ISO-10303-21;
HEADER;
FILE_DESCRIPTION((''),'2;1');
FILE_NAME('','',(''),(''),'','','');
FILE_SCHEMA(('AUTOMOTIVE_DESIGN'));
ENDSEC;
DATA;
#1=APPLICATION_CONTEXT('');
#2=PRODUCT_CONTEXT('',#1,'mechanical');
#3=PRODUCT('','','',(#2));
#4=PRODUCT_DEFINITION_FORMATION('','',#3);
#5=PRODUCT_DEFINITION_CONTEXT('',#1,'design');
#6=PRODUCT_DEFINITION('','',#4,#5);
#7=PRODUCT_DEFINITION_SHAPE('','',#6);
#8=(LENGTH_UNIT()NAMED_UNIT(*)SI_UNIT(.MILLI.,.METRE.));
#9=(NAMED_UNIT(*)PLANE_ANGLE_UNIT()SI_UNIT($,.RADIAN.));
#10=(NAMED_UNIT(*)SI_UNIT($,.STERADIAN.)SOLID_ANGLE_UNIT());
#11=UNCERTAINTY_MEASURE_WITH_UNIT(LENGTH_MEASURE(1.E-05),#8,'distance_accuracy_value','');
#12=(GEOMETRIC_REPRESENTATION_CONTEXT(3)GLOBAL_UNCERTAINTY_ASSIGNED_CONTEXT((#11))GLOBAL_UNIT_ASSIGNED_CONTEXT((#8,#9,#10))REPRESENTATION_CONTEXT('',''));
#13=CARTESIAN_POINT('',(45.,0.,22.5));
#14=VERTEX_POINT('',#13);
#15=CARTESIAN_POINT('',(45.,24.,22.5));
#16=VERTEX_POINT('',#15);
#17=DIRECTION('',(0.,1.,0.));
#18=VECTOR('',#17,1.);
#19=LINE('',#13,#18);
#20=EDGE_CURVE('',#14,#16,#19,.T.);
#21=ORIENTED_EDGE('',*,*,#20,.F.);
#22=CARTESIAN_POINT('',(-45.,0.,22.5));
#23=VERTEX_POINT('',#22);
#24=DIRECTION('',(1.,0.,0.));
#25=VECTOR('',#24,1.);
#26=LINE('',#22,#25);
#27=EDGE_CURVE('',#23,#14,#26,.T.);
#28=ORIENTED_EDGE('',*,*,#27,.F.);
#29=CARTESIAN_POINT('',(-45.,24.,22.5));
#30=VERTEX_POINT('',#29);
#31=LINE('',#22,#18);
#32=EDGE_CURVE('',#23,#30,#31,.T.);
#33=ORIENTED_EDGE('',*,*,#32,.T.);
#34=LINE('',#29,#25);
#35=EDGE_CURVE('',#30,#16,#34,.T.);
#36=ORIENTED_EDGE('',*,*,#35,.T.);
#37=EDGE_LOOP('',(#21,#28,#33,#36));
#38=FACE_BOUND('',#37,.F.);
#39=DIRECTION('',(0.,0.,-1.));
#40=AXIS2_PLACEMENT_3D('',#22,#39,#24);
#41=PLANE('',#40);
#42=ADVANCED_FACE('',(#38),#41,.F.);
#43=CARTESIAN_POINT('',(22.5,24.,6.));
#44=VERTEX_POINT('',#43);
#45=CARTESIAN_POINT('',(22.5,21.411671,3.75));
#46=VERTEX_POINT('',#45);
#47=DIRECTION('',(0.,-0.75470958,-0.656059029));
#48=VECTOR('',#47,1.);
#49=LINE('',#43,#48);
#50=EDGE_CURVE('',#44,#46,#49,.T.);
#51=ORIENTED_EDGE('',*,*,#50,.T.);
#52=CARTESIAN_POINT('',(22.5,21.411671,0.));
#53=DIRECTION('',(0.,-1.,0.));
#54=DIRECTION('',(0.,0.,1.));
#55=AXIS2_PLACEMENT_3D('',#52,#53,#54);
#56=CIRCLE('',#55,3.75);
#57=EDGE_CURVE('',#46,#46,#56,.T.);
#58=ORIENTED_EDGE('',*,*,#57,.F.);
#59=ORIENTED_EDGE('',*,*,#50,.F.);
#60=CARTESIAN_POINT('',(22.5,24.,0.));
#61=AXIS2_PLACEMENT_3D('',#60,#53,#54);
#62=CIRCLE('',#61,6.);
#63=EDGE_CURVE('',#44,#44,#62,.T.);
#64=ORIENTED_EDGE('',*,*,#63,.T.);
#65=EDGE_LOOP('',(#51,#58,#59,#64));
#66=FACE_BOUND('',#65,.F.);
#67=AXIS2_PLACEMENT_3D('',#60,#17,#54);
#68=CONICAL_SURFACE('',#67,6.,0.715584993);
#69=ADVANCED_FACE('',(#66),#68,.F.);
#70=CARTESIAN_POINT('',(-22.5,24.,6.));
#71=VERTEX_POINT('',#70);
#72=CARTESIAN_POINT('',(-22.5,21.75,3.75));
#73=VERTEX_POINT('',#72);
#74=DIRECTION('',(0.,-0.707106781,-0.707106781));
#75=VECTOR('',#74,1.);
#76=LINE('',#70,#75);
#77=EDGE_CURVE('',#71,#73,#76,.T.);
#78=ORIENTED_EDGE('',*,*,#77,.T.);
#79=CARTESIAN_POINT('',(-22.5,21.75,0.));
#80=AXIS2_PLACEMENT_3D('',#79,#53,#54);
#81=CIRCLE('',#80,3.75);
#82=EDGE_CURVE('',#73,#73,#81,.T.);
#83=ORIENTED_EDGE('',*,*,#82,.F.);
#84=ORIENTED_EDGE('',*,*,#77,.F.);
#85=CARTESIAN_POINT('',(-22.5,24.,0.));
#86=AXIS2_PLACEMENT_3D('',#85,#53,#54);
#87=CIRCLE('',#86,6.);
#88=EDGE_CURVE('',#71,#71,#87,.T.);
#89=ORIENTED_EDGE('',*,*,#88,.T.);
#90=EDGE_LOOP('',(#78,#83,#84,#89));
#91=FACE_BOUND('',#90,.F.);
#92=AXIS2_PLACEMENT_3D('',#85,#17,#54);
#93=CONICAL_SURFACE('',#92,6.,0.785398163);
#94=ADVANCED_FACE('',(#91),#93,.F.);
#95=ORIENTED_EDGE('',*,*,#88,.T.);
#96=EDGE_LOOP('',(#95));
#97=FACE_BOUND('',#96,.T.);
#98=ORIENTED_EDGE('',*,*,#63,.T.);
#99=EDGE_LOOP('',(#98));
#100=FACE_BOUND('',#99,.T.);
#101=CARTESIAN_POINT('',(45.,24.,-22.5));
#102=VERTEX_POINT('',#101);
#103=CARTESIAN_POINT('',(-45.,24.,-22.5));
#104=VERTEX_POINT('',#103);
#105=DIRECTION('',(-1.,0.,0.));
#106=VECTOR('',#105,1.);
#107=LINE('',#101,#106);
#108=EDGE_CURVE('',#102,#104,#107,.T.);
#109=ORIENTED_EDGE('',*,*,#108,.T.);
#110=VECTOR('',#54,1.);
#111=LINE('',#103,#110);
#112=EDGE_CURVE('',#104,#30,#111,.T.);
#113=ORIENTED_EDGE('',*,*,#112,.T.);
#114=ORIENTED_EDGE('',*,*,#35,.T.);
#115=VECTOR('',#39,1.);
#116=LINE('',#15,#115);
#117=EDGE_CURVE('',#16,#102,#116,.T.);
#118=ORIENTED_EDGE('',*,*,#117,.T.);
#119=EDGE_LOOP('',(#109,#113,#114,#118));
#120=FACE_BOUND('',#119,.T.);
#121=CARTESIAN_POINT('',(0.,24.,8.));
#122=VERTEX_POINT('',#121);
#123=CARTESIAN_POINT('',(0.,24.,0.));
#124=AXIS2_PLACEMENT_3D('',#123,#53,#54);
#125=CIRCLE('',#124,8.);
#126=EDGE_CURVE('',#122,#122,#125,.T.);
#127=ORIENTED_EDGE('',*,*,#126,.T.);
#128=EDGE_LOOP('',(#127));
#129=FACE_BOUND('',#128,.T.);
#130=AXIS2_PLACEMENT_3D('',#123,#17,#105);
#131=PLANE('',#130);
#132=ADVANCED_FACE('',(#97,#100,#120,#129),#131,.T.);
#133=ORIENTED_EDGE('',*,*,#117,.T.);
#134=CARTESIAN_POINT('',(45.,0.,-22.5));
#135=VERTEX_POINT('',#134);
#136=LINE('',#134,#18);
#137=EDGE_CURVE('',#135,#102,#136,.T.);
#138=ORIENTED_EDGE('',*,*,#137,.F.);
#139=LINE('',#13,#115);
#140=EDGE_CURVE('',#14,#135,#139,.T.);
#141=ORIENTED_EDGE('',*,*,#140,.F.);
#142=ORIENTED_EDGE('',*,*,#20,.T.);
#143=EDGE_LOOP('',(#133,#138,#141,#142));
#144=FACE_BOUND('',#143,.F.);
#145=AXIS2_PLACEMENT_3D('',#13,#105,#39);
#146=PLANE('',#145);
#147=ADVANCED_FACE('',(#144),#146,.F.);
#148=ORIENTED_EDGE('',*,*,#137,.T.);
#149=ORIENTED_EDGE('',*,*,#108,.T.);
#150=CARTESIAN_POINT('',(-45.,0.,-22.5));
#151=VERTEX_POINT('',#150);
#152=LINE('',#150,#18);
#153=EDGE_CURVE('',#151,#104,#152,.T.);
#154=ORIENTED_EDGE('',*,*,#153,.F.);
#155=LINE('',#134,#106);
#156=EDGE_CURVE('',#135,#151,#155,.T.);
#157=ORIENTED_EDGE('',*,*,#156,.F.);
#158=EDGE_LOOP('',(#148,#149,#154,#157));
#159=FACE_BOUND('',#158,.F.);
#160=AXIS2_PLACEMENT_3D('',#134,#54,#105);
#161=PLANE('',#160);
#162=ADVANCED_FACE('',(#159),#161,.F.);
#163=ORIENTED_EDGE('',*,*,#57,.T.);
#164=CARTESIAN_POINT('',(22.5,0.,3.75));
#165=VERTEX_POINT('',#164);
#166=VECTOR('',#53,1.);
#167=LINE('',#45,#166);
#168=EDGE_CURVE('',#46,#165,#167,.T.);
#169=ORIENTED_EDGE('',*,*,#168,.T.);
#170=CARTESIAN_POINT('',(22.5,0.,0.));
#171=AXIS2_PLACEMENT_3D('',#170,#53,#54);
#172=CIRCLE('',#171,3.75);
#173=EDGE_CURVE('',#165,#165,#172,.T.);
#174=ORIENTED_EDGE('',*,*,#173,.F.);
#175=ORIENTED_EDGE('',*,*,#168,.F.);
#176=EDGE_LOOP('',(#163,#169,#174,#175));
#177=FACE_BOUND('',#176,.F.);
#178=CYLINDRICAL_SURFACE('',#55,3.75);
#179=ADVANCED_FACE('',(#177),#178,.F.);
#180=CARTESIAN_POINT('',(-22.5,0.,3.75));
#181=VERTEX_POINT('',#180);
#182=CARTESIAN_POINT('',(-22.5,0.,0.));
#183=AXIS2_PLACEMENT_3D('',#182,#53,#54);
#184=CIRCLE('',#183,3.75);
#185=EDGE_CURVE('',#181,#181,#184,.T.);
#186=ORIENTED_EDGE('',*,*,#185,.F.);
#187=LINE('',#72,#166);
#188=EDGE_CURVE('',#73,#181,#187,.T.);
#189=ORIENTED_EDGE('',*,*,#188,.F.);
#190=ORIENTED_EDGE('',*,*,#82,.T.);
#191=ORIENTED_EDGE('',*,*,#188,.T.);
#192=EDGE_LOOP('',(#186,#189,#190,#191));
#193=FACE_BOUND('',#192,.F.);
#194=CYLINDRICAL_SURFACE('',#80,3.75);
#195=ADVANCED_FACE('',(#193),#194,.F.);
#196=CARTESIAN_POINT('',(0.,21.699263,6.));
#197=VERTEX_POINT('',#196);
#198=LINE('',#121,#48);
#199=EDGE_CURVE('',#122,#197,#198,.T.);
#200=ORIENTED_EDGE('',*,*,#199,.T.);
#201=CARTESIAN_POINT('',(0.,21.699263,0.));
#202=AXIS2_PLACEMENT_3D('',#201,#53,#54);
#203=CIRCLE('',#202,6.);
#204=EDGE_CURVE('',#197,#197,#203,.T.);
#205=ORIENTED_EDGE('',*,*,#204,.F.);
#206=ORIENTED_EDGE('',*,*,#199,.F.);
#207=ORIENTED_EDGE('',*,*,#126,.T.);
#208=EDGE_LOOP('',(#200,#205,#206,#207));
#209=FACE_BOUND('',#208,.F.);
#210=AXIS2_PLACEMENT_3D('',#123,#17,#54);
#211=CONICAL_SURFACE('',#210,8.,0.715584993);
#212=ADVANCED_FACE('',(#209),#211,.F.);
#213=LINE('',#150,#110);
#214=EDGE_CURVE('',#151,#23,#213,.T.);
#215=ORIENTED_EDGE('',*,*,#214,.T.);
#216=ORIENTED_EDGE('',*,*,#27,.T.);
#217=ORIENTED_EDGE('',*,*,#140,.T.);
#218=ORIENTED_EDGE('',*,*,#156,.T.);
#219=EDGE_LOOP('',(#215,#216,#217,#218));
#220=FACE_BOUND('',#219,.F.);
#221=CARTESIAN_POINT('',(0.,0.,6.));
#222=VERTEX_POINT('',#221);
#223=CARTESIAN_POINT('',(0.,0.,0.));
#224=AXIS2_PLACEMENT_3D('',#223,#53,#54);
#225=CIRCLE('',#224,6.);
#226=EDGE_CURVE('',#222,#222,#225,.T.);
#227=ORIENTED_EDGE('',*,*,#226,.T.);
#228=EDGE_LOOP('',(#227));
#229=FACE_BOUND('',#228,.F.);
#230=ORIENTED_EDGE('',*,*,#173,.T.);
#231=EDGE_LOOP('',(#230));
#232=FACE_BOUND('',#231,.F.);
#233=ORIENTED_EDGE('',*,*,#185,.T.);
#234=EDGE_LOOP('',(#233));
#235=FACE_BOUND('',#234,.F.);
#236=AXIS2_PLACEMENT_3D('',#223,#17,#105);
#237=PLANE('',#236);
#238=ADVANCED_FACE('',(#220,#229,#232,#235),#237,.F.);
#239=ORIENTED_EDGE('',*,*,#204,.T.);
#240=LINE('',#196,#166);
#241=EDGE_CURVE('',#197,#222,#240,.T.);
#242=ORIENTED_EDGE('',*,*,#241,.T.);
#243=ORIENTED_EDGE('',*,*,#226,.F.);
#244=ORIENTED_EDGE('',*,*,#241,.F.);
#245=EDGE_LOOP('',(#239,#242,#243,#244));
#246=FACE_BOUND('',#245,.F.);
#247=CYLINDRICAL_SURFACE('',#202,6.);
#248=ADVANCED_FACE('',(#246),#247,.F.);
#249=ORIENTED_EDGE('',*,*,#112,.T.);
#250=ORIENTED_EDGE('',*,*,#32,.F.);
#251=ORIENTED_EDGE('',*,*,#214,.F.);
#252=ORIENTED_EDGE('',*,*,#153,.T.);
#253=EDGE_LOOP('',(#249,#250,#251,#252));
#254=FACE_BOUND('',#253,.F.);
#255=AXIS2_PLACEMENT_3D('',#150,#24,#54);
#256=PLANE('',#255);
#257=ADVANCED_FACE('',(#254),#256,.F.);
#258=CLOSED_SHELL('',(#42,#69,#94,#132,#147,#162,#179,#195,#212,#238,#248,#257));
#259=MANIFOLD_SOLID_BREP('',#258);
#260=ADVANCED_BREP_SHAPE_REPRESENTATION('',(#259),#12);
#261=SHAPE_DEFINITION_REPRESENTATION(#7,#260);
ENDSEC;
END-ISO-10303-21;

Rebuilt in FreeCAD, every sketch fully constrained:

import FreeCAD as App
import Part
import Sketcher

V = App.Vector


def add_polygon(sketch, points):
    """Adds a closed chain of lines whose ends are joined by coincident constraints."""
    first, n = sketch.GeometryCount, len(points)
    for a, b in zip(points, points[1:] + points[:1]):
        sketch.addGeometry(Part.LineSegment(App.Vector(*a, 0), App.Vector(*b, 0)), False)
    for i in range(n):
        sketch.addConstraint(Sketcher.Constraint("Coincident", first + i, 2, first + (i + 1) % n, 1))

doc = App.newDocument("Part")
body = doc.addObject("PartDesign::Body", "Body")

# Sketch on XZ plane
sketch1 = doc.addObject("Sketcher::SketchObject", "Sketch")
body.addObject(sketch1)
sketch1.AttachmentSupport = (doc.XZ_Plane, [""])
sketch1.MapMode = "FlatFace"
add_polygon(sketch1, [(-45, -22), (-45, 22), (45, 22), (45, -22)])  # lines 0-3
sketch1.addConstraint([
    Sketcher.Constraint("Vertical", 0),
    Sketcher.Constraint("Horizontal", 1),
    Sketcher.Constraint("Vertical", 2),
    Sketcher.Constraint("Horizontal", 3),
    Sketcher.Constraint("Symmetric", 0, 2, 2, 2, -1, 1),
    Sketcher.Constraint("DistanceX", 1, 1, 1, 2, 90.0),
    Sketcher.Constraint("DistanceY", 0, 1, 0, 2, 45.0),
])
pad1 = doc.addObject("PartDesign::Pad", "Pad")
body.addObject(pad1)
pad1.Profile = sketch1
pad1.Length = 24
pad1.Reversed = True

# Sketch on XZ plane
sketch2 = doc.addObject("Sketcher::SketchObject", "Sketch001")
body.addObject(sketch2)
sketch2.AttachmentSupport = (doc.XZ_Plane, [""])
sketch2.MapMode = "FlatFace"
sketch2.AttachmentOffset = App.Placement(V(0, 0, -24), App.Rotation())
sketch2.addGeometry(Part.Circle(V(-22.5, 0, 0), V(0, 0, 1), 3.8), False)
sketch2.addConstraint([
    Sketcher.Constraint("PointOnObject", 0, 3, -1),
    Sketcher.Constraint("Diameter", 0, 7.5),
    Sketcher.Constraint("DistanceX", 0, 3, -1, 1, 22.5),
])
doc.recompute()
hole = doc.addObject("PartDesign::Hole", "Hole")
body.addObject(hole)
hole.Profile = sketch2
hole.ThreadType = "None"
hole.Diameter = 7.5
hole.DepthType = "ThroughAll"
hole.HoleCutType = "Countersink"
hole.HoleCutDiameter = 12
hole.HoleCutCountersinkAngle = 90
hole.Reversed = True

# Sketch on XZ plane
sketch3 = doc.addObject("Sketcher::SketchObject", "Sketch002")
body.addObject(sketch3)
sketch3.AttachmentSupport = (doc.XZ_Plane, [""])
sketch3.MapMode = "FlatFace"
sketch3.AttachmentOffset = App.Placement(V(0, 0, -24), App.Rotation())
sketch3.addGeometry(Part.Circle(V(0, 0, 0), V(0, 0, 1), 6), False)
sketch3.addConstraint([
    Sketcher.Constraint("Coincident", 0, 3, -1, 1),
    Sketcher.Constraint("Diameter", 0, 12.0),
])
doc.recompute()
hole2 = doc.addObject("PartDesign::Hole", "Hole001")
body.addObject(hole2)
hole2.Profile = sketch3
hole2.ThreadType = "None"
hole2.Diameter = 12
hole2.DepthType = "ThroughAll"
hole2.HoleCutType = "Countersink"
hole2.HoleCutDiameter = 16
hole2.HoleCutCountersinkAngle = 82
hole2.Reversed = True

# Sketch on XZ plane
sketch4 = doc.addObject("Sketcher::SketchObject", "Sketch003")
body.addObject(sketch4)
sketch4.AttachmentSupport = (doc.XZ_Plane, [""])
sketch4.MapMode = "FlatFace"
sketch4.AttachmentOffset = App.Placement(V(0, 0, -24), App.Rotation())
sketch4.addGeometry([
    Part.Circle(V(0, 0, 0), V(0, 0, 1), 3.8),
    Part.Circle(V(22.5, 0, 0), V(0, 0, 1), 3.8),
], False)
sketch4.addConstraint([
    Sketcher.Constraint("Coincident", 0, 3, -1, 1),
    Sketcher.Constraint("Equal", 0, 1),
    Sketcher.Constraint("PointOnObject", 1, 3, -1),
    Sketcher.Constraint("Diameter", 0, 7.5),
    Sketcher.Constraint("DistanceX", -1, 1, 1, 3, 22.5),
])
doc.recompute()
hole3 = doc.addObject("PartDesign::Hole", "Hole002")
body.addObject(hole3)
hole3.Profile = sketch4
hole3.ThreadType = "None"
hole3.Diameter = 7.5
hole3.DepthType = "ThroughAll"
hole3.HoleCutType = "Countersink"
hole3.HoleCutDiameter = 12
hole3.HoleCutCountersinkAngle = 82
hole3.Reversed = True

doc.recompute()
